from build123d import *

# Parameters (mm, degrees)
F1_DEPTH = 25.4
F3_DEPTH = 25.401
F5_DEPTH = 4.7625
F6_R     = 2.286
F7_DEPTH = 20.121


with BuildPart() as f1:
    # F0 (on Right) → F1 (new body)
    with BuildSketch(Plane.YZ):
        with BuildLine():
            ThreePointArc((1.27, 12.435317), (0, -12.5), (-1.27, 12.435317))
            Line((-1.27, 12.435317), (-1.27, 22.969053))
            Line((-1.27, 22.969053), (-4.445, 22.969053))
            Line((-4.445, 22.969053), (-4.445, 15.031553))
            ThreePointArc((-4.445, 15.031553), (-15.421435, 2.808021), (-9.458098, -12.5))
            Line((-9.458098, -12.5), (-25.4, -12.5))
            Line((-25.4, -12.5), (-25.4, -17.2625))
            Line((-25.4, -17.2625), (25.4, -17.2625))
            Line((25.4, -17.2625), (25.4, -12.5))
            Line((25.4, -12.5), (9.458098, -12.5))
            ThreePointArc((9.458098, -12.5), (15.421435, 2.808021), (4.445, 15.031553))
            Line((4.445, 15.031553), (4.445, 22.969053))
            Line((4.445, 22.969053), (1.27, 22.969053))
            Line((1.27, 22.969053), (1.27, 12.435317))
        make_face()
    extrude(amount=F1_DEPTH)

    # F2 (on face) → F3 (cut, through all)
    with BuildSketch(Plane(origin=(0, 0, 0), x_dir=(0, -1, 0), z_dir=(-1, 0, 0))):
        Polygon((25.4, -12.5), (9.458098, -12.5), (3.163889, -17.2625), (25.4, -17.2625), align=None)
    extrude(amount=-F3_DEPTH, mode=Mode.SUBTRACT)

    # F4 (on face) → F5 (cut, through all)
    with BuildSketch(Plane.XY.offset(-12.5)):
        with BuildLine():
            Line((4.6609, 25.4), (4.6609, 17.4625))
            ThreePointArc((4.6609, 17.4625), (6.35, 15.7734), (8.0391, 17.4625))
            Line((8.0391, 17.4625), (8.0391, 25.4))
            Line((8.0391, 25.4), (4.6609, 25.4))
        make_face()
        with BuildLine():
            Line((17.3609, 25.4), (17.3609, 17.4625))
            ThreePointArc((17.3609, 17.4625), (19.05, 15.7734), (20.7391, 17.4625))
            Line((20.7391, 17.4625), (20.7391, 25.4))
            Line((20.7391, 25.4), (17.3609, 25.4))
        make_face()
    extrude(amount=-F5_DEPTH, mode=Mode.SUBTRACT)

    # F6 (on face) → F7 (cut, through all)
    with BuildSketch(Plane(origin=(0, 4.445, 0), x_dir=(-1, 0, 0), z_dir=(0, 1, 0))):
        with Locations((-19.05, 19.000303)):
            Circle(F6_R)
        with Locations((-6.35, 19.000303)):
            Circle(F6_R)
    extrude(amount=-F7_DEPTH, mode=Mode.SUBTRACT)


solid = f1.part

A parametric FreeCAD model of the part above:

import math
import FreeCAD as App
import Part
import Sketcher
from FreeCAD import Vector
Q = App.Units.Quantity

doc = App.newDocument("Part")
body = doc.addObject("PartDesign::Body", "Body")

sketch1 = body.newObject("Sketcher::SketchObject", "Sketch")
sketch1.AttachmentSupport = (doc.getObject("YZ_Plane"), [""])
sketch1.MapMode = "FlatFace"
sketch1.addGeometry([
    Part.ArcOfCircle(Part.Circle(Vector(0, 0, 0), Vector(0, 0, 1), 12.5), math.radians(96), math.radians(444)),
    Part.LineSegment(Vector(-1.3, 12.4, 0), Vector(-1.3, 23, 0)),
    Part.LineSegment(Vector(-1.3, 23, 0), Vector(-4.4, 23, 0)),
    Part.LineSegment(Vector(-4.4, 23, 0), Vector(-4.4, 15, 0)),
    Part.ArcOfCircle(Part.Circle(Vector(0, 0, 0), Vector(0, 0, 1), 15.7), math.radians(106), math.radians(233)),
    Part.LineSegment(Vector(-9.5, -12.5, 0), Vector(-25.4, -12.5, 0)),
    Part.LineSegment(Vector(-25.4, -12.5, 0), Vector(-25.4, -17.3, 0)),
    Part.LineSegment(Vector(-25.4, -17.3, 0), Vector(25.4, -17.3, 0)),
    Part.LineSegment(Vector(25.4, -17.3, 0), Vector(25.4, -12.5, 0)),
    Part.LineSegment(Vector(25.4, -12.5, 0), Vector(9.5, -12.5, 0)),
    Part.ArcOfCircle(Part.Circle(Vector(0, 0, 0), Vector(0, 0, 1), 15.7), math.radians(-53), math.radians(74)),
    Part.LineSegment(Vector(4.4, 15, 0), Vector(4.4, 23, 0)),
    Part.LineSegment(Vector(4.4, 23, 0), Vector(1.3, 23, 0)),
    Part.LineSegment(Vector(1.3, 23, 0), Vector(1.3, 12.4, 0)),
], False)
sketch1.addConstraint([
    Sketcher.Constraint("Coincident", 0, 1, 1, 1),
    Sketcher.Constraint("Coincident", 1, 2, 2, 1),
    Sketcher.Constraint("Coincident", 2, 2, 3, 1),
    Sketcher.Constraint("Coincident", 3, 2, 4, 1),
    Sketcher.Constraint("Coincident", 4, 2, 5, 1),
    Sketcher.Constraint("Coincident", 5, 2, 6, 1),
    Sketcher.Constraint("Coincident", 6, 2, 7, 1),
    Sketcher.Constraint("Coincident", 7, 2, 8, 1),
    Sketcher.Constraint("Coincident", 8, 2, 9, 1),
    Sketcher.Constraint("Coincident", 9, 2, 10, 1),
    Sketcher.Constraint("Coincident", 10, 2, 11, 1),
    Sketcher.Constraint("Coincident", 11, 2, 12, 1),
    Sketcher.Constraint("Coincident", 12, 2, 13, 1),
    Sketcher.Constraint("Coincident", 13, 2, 0, 2),
    Sketcher.Constraint("Vertical", 1),
    Sketcher.Constraint("Horizontal", 2),
    Sketcher.Constraint("Vertical", 3),
    Sketcher.Constraint("Horizontal", 5),
    Sketcher.Constraint("Vertical", 6),
    Sketcher.Constraint("Horizontal", 7),
    Sketcher.Constraint("Vertical", 8),
    Sketcher.Constraint("Horizontal", 9),
    Sketcher.Constraint("Vertical", 11),
    Sketcher.Constraint("Horizontal", 12),
    Sketcher.Constraint("Vertical", 13),
    Sketcher.Constraint("Coincident", 0, 3, -1, 1),
    Sketcher.Constraint("Coincident", 4, 3, -1, 1),
    Sketcher.Constraint("Coincident", 10, 3, -1, 1),
    Sketcher.Constraint("Equal", 4, 10),
    Sketcher.Constraint("Symmetric", 5, 2, 8, 2, -2),
    Sketcher.Constraint("Symmetric", 2, 2, 11, 2, -2),
    Sketcher.Constraint("Horizontal", 0, 1, 13, 2),
    Sketcher.Constraint("DistanceX", 7, 1, 7, 2, Q("2 in")),
    Sketcher.Constraint("DistanceX", 1, 2, 12, 2, Q("0.1 in")),
    Sketcher.Constraint("DistanceX", 2, 2, 2, 1, Q("0.125 in")),
    Sketcher.Constraint("DistanceY", 3, 2, 3, 1, Q("0.3125 in")),
    Sketcher.Constraint("DistanceY", 6, 2, 6, 1, Q("0.1875 in")),
    Sketcher.Constraint("Radius", 0, 12.5),
    Sketcher.Constraint("Radius", 4, 15.674999),
    Sketcher.Constraint("DistanceX", 5, 2, 5, 1, 15.941902),
])
pad1 = body.newObject("PartDesign::Pad", "Pad")
pad1.Profile = sketch1
pad1.Length = Q("1 in")

sketch2 = body.newObject("Sketcher::SketchObject", "Sketch001")
sketch2.AttachmentSupport = (doc.getObject("YZ_Plane"), [""])
sketch2.MapMode = "FlatFace"
sketch2.addGeometry([
    Part.LineSegment(Vector(-25.4, -12.5, 0), Vector(-9.5, -12.5, 0)),
    Part.LineSegment(Vector(-9.5, -12.5, 0), Vector(-3.2, -17.3, 0)),
    Part.LineSegment(Vector(-3.2, -17.3, 0), Vector(-25.4, -17.3, 0)),
    Part.LineSegment(Vector(-25.4, -17.3, 0), Vector(-25.4, -12.5, 0)),
], False)
sketch2.addConstraint([
    Sketcher.Constraint("Coincident", 0, 2, 1, 1),
    Sketcher.Constraint("Coincident", 1, 2, 2, 1),
    Sketcher.Constraint("Coincident", 2, 2, 3, 1),
    Sketcher.Constraint("Coincident", 3, 2, 0, 1),
    Sketcher.Constraint("Horizontal", 0),
    Sketcher.Constraint("Horizontal", 2),
    Sketcher.Constraint("Vertical", 3),
    Sketcher.Constraint("DistanceX", 2, 2, -1, 1, Q("1 in")),
    Sketcher.Constraint("DistanceY", 3, 1, 3, 2, Q("0.1875 in")),
    Sketcher.Constraint("DistanceX", 0, 1, 0, 2, 15.941902),
    Sketcher.Constraint("DistanceX", 2, 2, 2, 1, 22.236111),
    Sketcher.Constraint("DistanceY", 0, 2, -1, 1, 12.5),
])
pocket1 = body.newObject("PartDesign::Pocket", "Pocket")
pocket1.Profile = sketch2
pocket1.Type = "ThroughAll"
pocket1.Reversed = True

sketch3 = body.newObject("Sketcher::SketchObject", "Sketch002")
sketch3.AttachmentSupport = (doc.getObject("XY_Plane"), [""])
sketch3.MapMode = "FlatFace"
sketch3.AttachmentOffset = App.Placement(Vector(0, 0, -12.5), App.Rotation())
sketch3.addGeometry([
    Part.LineSegment(Vector(4.7, 25.4, 0), Vector(4.7, 17.5, 0)),
    Part.ArcOfCircle(Part.Circle(Vector(6.3, 17.5, 0), Vector(0, 0, 1), 1.7), math.radians(180), math.radians(360)),
    Part.LineSegment(Vector(8, 17.5, 0), Vector(8, 25.4, 0)),
    Part.LineSegment(Vector(8, 25.4, 0), Vector(4.7, 25.4, 0)),
    Part.LineSegment(Vector(17.4, 25.4, 0), Vector(17.4, 17.5, 0)),
    Part.ArcOfCircle(Part.Circle(Vector(19.1, 17.5, 0), Vector(0, 0, 1), 1.7), math.radians(180), math.radians(360)),
    Part.LineSegment(Vector(20.7, 17.5, 0), Vector(20.7, 25.4, 0)),
    Part.LineSegment(Vector(20.7, 25.4, 0), Vector(17.4, 25.4, 0)),
], False)
sketch3.addConstraint([
    Sketcher.Constraint("Tangent", 0, 2, 1, 1),
    Sketcher.Constraint("Tangent", 1, 2, 2, 1),
    Sketcher.Constraint("Coincident", 2, 2, 3, 1),
    Sketcher.Constraint("Coincident", 3, 2, 0, 1),
    Sketcher.Constraint("Tangent", 4, 2, 5, 1),
    Sketcher.Constraint("Tangent", 5, 2, 6, 1),
    Sketcher.Constraint("Coincident", 6, 2, 7, 1),
    Sketcher.Constraint("Coincident", 7, 2, 4, 1),
    Sketcher.Constraint("Vertical", 0),
    Sketcher.Constraint("Vertical", 2),
    Sketcher.Constraint("Horizontal", 3),
    Sketcher.Constraint("Vertical", 4),
    Sketcher.Constraint("Vertical", 6),
    Sketcher.Constraint("Horizontal", 7),
    Sketcher.Constraint("Equal", 1, 5),
    Sketcher.Constraint("Horizontal", 1, 3, 5, 3),
    Sketcher.Constraint("Horizontal", 3, 2, 6, 2),
    Sketcher.Constraint("DistanceY", -1, 1, 2, 2, Q("1 in")),
    Sketcher.Constraint("Radius", 1, Q("0.0665 in")),
    Sketcher.Constraint("DistanceX", 1, 3, 5, 3, Q("0.5 in")),
    Sketcher.Constraint("DistanceY", 0, 2, 0, 1, Q("0.3125 in")),
    Sketcher.Constraint("DistanceX", -1, 1, 1, 3, Q("0.25 in")),
])
pocket2 = body.newObject("PartDesign::Pocket", "Pocket001")
pocket2.Profile = sketch3
pocket2.Type = "ThroughAll"

sketch4 = body.newObject("Sketcher::SketchObject", "Sketch003")
sketch4.AttachmentSupport = (doc.getObject("XZ_Plane"), [""])
sketch4.MapMode = "FlatFace"
sketch4.AttachmentOffset = App.Placement(Vector(0, 0, -0.175 * 25.4), App.Rotation())
sketch4.addGeometry([
    Part.Circle(Vector(19.1, 19, 0), Vector(0, 0, 1), 2.3),
    Part.Circle(Vector(6.3, 19, 0), Vector(0, 0, 1), 2.3),
], False)
sketch4.addConstraint([
    Sketcher.Constraint("Equal", 0, 1),
    Sketcher.Constraint("Horizontal", 0, 3, 1, 3),
    Sketcher.Constraint("Diameter", 0, Q("0.18 in")),
    Sketcher.Constraint("DistanceX", 1, 3, 0, 3, Q("0.5 in")),
    Sketcher.Constraint("DistanceX", -1, 1, 0, 3, Q("0.75 in")),
    Sketcher.Constraint("DistanceY", -1, 1, 0, 3, 19.000303),
])
pocket3 = body.newObject("PartDesign::Pocket", "Pocket002")
pocket3.Profile = sketch4
pocket3.Type = "ThroughAll"
pocket3.Reversed = True

doc.recompute()
